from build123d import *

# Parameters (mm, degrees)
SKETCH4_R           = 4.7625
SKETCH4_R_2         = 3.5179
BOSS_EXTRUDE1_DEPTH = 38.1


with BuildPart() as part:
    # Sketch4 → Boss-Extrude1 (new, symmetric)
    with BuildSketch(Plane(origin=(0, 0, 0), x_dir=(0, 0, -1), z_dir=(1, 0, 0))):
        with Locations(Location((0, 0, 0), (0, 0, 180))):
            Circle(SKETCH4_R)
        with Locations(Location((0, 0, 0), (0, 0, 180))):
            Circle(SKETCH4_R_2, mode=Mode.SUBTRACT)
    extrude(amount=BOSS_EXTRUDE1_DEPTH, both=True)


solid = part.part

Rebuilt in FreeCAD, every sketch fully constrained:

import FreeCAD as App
import Part
import Sketcher
from FreeCAD import Vector
Q = App.Units.Quantity

doc = App.newDocument("Part")
body = doc.addObject("PartDesign::Body", "Body")

sketch1 = body.newObject("Sketcher::SketchObject", "Sketch")
sketch1.AttachmentSupport = (doc.getObject("YZ_Plane"), [""])
sketch1.MapMode = "FlatFace"
sketch1.addGeometry([
    Part.Circle(Vector(0, 0, 0), Vector(0, 0, 1), 4.8),
    Part.Circle(Vector(0, 0, 0), Vector(0, 0, 1), 3.5),
], False)
sketch1.addConstraint([
    Sketcher.Constraint("Coincident", 0, 3, -1, 1),
    Sketcher.Constraint("Coincident", 1, 3, -1, 1),
    Sketcher.Constraint("Diameter", 0, Q("0.375 in")),
    Sketcher.Constraint("Diameter", 1, Q("0.277 in")),
])
pad1 = body.newObject("PartDesign::Pad", "Pad")
pad1.Profile = sketch1
pad1.Length = Q("3 in")
pad1.Midplane = True

doc.recompute()
